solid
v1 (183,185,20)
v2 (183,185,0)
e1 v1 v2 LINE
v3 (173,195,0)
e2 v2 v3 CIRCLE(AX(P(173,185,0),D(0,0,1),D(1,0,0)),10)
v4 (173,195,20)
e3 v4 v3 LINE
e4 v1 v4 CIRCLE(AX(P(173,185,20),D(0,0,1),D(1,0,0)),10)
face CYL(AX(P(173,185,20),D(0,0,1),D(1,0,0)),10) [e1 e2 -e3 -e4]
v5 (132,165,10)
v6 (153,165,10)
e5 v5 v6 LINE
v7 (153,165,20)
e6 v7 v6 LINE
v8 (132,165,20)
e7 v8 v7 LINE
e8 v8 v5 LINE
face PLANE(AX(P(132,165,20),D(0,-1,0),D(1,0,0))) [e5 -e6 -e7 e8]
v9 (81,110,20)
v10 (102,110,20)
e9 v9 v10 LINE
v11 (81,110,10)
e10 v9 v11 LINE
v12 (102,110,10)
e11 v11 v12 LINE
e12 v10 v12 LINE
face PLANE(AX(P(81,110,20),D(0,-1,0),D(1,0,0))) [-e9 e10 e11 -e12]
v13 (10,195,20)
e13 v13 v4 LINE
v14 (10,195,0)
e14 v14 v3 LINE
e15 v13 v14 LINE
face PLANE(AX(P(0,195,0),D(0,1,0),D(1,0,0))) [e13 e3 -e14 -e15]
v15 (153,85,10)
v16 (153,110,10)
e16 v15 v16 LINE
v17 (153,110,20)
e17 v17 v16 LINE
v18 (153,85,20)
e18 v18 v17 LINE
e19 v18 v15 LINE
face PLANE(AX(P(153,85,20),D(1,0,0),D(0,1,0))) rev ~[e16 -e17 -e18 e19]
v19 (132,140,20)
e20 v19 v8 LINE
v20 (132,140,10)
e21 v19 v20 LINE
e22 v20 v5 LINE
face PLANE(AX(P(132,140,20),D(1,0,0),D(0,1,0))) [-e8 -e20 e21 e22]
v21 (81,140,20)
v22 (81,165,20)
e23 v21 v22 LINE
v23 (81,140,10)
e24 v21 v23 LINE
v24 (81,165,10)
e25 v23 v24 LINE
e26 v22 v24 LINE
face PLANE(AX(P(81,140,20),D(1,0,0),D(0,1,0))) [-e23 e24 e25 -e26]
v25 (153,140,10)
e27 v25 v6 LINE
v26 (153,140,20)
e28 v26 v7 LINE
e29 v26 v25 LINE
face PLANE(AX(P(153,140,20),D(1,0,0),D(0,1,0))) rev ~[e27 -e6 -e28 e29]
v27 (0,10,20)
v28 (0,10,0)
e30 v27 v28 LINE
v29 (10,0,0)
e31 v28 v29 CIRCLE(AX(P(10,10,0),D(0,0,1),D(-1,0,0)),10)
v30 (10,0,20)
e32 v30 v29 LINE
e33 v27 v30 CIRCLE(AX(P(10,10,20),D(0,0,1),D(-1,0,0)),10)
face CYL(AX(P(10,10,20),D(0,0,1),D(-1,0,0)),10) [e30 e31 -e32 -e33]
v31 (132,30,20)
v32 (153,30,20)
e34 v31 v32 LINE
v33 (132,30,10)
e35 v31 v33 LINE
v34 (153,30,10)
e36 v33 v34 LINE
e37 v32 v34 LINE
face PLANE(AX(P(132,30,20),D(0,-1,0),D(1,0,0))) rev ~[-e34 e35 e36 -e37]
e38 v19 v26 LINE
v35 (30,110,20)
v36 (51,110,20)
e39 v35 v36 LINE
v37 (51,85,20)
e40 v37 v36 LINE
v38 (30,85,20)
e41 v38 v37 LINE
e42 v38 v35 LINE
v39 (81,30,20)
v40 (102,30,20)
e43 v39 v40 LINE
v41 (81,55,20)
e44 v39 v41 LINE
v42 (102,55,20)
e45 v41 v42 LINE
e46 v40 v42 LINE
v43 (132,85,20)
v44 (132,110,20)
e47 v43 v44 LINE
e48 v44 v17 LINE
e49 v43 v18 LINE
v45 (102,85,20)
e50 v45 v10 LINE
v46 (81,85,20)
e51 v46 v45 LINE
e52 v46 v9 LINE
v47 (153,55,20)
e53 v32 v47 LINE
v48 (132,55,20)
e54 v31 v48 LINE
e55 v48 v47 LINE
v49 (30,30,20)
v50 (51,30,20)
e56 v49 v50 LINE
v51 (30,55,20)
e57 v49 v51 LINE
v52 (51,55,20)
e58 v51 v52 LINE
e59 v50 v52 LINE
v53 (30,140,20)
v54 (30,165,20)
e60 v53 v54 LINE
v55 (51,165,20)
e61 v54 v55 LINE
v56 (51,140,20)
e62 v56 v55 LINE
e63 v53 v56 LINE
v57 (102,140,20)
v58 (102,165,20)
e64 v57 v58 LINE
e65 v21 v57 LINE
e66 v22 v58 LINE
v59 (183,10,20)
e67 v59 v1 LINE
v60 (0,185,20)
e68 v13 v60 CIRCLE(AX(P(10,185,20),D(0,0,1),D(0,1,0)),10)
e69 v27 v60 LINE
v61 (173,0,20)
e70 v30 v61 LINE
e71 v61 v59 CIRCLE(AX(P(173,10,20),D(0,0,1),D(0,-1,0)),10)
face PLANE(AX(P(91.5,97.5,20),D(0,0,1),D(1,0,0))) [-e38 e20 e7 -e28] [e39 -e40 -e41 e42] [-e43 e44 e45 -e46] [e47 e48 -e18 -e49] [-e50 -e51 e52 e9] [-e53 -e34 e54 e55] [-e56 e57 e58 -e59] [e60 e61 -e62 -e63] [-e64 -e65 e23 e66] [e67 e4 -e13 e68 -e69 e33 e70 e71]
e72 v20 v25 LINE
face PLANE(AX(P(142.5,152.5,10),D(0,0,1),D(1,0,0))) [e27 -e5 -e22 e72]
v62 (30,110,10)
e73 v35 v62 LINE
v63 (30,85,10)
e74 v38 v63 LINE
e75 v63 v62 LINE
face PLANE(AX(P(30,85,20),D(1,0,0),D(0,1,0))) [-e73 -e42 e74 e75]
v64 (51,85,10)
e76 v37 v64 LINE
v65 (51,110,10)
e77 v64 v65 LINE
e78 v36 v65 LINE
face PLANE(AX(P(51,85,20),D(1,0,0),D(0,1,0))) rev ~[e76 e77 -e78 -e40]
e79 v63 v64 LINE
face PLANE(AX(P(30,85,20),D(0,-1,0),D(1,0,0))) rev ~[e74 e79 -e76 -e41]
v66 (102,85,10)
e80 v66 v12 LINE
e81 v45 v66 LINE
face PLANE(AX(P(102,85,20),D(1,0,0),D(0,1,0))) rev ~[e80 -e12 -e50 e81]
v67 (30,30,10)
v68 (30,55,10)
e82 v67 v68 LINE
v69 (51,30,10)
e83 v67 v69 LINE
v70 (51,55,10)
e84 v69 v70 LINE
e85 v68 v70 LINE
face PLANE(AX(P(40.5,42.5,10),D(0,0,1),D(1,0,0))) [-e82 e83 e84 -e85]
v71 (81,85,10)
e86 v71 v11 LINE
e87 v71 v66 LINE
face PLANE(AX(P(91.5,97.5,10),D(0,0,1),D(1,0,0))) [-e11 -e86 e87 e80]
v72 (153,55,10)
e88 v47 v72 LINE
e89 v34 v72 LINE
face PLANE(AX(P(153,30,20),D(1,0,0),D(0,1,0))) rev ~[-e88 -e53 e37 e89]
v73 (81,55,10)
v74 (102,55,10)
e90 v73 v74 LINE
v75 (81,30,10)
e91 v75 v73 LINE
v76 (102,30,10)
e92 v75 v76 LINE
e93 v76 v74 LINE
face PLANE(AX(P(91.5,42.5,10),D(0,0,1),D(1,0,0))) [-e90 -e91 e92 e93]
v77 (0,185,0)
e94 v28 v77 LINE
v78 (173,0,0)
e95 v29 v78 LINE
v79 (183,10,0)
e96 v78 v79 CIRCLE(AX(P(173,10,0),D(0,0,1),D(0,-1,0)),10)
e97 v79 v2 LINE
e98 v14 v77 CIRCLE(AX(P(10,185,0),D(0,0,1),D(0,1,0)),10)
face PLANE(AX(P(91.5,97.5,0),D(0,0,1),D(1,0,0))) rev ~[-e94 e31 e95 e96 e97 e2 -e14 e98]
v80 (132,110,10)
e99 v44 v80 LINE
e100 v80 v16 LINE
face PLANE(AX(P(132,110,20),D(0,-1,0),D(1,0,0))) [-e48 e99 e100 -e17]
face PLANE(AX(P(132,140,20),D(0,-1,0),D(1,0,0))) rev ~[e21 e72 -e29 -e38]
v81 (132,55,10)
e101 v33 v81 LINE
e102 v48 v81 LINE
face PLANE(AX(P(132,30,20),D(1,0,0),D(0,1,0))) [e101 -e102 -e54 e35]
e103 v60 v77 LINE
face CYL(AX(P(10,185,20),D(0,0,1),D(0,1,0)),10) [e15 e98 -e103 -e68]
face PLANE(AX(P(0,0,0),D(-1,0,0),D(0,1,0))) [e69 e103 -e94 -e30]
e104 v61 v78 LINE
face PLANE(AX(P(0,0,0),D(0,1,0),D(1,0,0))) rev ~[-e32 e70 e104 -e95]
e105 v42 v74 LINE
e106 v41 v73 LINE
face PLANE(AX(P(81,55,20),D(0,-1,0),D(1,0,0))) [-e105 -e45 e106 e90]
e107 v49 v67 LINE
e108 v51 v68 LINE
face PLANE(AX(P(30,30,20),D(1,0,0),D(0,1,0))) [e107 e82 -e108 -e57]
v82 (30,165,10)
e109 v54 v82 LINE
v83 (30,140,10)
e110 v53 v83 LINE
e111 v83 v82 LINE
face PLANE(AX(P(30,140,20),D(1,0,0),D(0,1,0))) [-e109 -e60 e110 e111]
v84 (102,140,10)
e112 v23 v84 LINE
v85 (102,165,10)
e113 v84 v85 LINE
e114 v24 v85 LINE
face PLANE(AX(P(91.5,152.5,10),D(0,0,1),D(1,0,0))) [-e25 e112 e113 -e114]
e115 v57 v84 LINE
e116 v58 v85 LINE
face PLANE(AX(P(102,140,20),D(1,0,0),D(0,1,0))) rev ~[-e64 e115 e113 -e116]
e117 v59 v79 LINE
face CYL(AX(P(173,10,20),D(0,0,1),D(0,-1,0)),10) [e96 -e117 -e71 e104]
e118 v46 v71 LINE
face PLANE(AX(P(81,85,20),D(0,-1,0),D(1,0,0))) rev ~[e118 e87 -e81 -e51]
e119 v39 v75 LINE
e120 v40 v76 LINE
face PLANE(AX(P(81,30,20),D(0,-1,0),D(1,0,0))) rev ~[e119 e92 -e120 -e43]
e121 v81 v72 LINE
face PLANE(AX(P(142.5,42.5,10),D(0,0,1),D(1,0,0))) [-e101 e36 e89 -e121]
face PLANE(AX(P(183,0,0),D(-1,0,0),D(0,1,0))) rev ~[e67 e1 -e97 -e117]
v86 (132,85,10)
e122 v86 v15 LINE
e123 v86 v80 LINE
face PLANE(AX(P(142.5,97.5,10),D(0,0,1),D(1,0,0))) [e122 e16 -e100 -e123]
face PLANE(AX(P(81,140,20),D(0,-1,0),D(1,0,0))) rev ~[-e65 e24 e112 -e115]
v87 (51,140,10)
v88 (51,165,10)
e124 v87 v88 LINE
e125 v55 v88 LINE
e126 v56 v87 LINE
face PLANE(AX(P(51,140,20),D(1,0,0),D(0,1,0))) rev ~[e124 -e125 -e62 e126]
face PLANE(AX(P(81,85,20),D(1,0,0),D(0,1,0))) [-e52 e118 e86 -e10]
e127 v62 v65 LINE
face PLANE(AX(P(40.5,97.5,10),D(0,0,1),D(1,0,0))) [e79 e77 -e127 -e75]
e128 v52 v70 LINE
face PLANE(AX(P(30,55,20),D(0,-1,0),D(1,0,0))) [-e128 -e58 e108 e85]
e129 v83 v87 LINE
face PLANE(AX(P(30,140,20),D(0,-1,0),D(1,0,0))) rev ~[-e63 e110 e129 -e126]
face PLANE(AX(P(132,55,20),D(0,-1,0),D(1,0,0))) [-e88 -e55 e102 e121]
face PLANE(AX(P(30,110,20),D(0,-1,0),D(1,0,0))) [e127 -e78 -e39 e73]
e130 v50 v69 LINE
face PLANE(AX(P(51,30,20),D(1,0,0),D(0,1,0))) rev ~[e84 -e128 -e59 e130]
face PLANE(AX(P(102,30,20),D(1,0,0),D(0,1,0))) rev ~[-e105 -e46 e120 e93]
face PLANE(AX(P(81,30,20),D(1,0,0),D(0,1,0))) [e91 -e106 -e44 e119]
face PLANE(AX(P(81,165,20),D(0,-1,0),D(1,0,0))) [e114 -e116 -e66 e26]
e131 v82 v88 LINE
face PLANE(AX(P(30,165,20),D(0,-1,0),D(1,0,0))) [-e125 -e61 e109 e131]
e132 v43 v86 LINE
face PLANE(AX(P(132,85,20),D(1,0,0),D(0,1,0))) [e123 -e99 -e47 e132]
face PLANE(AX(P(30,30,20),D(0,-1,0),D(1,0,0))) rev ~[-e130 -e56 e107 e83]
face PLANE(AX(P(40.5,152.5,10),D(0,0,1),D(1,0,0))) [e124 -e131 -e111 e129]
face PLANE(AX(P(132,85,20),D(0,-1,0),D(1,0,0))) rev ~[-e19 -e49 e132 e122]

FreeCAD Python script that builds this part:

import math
import FreeCAD as App
import Part
import Sketcher
from FreeCAD import Vector

doc = App.newDocument("Part")
body = doc.addObject("PartDesign::Body", "Body")

# Sketch on XY plane
sketch1 = body.newObject("Sketcher::SketchObject", "Sketch")
sketch1.AttachmentSupport = (doc.getObject("XY_Plane"), [""])
sketch1.MapMode = "FlatFace"
sketch1.addGeometry([
    Part.LineSegment(Vector(0, 195, 0), Vector(0, 0, 0)),
    Part.LineSegment(Vector(0, 0, 0), Vector(183, 0, 0)),
    Part.LineSegment(Vector(183, 0, 0), Vector(183, 195, 0)),
    Part.LineSegment(Vector(183, 195, 0), Vector(0, 195, 0)),
], False)
sketch1.addConstraint([
    Sketcher.Constraint("Coincident", 0, 2, 1, 1),
    Sketcher.Constraint("Coincident", 1, 2, 2, 1),
    Sketcher.Constraint("Coincident", 2, 2, 3, 1),
    Sketcher.Constraint("Coincident", 3, 2, 0, 1),
    Sketcher.Constraint("Vertical", 0),
    Sketcher.Constraint("Horizontal", 1),
    Sketcher.Constraint("Vertical", 2),
    Sketcher.Constraint("Horizontal", 3),
    Sketcher.Constraint("Coincident", 0, 2, -1, 1),
    Sketcher.Constraint("DistanceX", 1, 1, 1, 2, 183.0),
    Sketcher.Constraint("DistanceY", 0, 2, 0, 1, 195.0),
])
pad1 = body.newObject("PartDesign::Pad", "Pad")
pad1.Profile = sketch1
pad1.Length = 20

# Sketch on XY plane
sketch2 = body.newObject("Sketcher::SketchObject", "Sketch001")
sketch2.AttachmentSupport = (doc.getObject("XY_Plane"), [""])
sketch2.MapMode = "FlatFace"
sketch2.AttachmentOffset = App.Placement(Vector(0, 0, 20), App.Rotation())
sketch2.addGeometry([
    Part.LineSegment(Vector(30, 110, 0), Vector(30, 85, 0)),  # 0
    Part.LineSegment(Vector(30, 85, 0), Vector(51, 85, 0)),  # 1
    Part.LineSegment(Vector(51, 85, 0), Vector(51, 110, 0)),  # 2
    Part.LineSegment(Vector(51, 110, 0), Vector(30, 110, 0)),  # 3
    Part.LineSegment(Vector(30, 165, 0), Vector(30, 140, 0)),  # 4
    Part.LineSegment(Vector(30, 140, 0), Vector(51, 140, 0)),  # 5
    Part.LineSegment(Vector(51, 140, 0), Vector(51, 165, 0)),  # 6
    Part.LineSegment(Vector(51, 165, 0), Vector(30, 165, 0)),  # 7
    Part.LineSegment(Vector(81, 165, 0), Vector(81, 140, 0)),  # 8
    Part.LineSegment(Vector(81, 140, 0), Vector(102, 140, 0)),  # 9
    Part.LineSegment(Vector(102, 140, 0), Vector(102, 165, 0)),  # 10
    Part.LineSegment(Vector(102, 165, 0), Vector(81, 165, 0)),  # 11
    Part.LineSegment(Vector(30, 55, 0), Vector(30, 30, 0)),  # 12
    Part.LineSegment(Vector(30, 30, 0), Vector(51, 30, 0)),  # 13
    Part.LineSegment(Vector(51, 30, 0), Vector(51, 55, 0)),  # 14
    Part.LineSegment(Vector(51, 55, 0), Vector(30, 55, 0)),  # 15
    Part.LineSegment(Vector(81, 110, 0), Vector(81, 85, 0)),  # 16
    Part.LineSegment(Vector(81, 85, 0), Vector(102, 85, 0)),  # 17
    Part.LineSegment(Vector(102, 85, 0), Vector(102, 110, 0)),  # 18
    Part.LineSegment(Vector(102, 110, 0), Vector(81, 110, 0)),  # 19
    Part.LineSegment(Vector(81, 55, 0), Vector(81, 30, 0)),  # 20
    Part.LineSegment(Vector(81, 30, 0), Vector(102, 30, 0)),  # 21
    Part.LineSegment(Vector(102, 30, 0), Vector(102, 55, 0)),  # 22
    Part.LineSegment(Vector(102, 55, 0), Vector(81, 55, 0)),  # 23
    Part.LineSegment(Vector(132, 110, 0), Vector(132, 85, 0)),  # 24
    Part.LineSegment(Vector(132, 85, 0), Vector(153, 85, 0)),  # 25
    Part.LineSegment(Vector(153, 85, 0), Vector(153, 110, 0)),  # 26
    Part.LineSegment(Vector(153, 110, 0), Vector(132, 110, 0)),  # 27
    Part.LineSegment(Vector(132, 55, 0), Vector(132, 30, 0)),  # 28
    Part.LineSegment(Vector(132, 30, 0), Vector(153, 30, 0)),  # 29
    Part.LineSegment(Vector(153, 30, 0), Vector(153, 55, 0)),  # 30
    Part.LineSegment(Vector(153, 55, 0), Vector(132, 55, 0)),  # 31
    Part.LineSegment(Vector(132, 165, 0), Vector(132, 140, 0)),  # 32
    Part.LineSegment(Vector(132, 140, 0), Vector(153, 140, 0)),  # 33
    Part.LineSegment(Vector(153, 140, 0), Vector(153, 165, 0)),  # 34
    Part.LineSegment(Vector(153, 165, 0), Vector(132, 165, 0)),  # 35
], False)
sketch2.addConstraint([
    Sketcher.Constraint("Coincident", 0, 2, 1, 1),
    Sketcher.Constraint("Coincident", 1, 2, 2, 1),
    Sketcher.Constraint("Coincident", 2, 2, 3, 1),
    Sketcher.Constraint("Coincident", 3, 2, 0, 1),
    Sketcher.Constraint("Coincident", 4, 2, 5, 1),
    Sketcher.Constraint("Coincident", 5, 2, 6, 1),
    Sketcher.Constraint("Coincident", 6, 2, 7, 1),
    Sketcher.Constraint("Coincident", 7, 2, 4, 1),
    Sketcher.Constraint("Coincident", 8, 2, 9, 1),
    Sketcher.Constraint("Coincident", 9, 2, 10, 1),
    Sketcher.Constraint("Coincident", 10, 2, 11, 1),
    Sketcher.Constraint("Coincident", 11, 2, 8, 1),
    Sketcher.Constraint("Coincident", 12, 2, 13, 1),
    Sketcher.Constraint("Coincident", 13, 2, 14, 1),
    Sketcher.Constraint("Coincident", 14, 2, 15, 1),
    Sketcher.Constraint("Coincident", 15, 2, 12, 1),
    Sketcher.Constraint("Coincident", 16, 2, 17, 1),
    Sketcher.Constraint("Coincident", 17, 2, 18, 1),
    Sketcher.Constraint("Coincident", 18, 2, 19, 1),
    Sketcher.Constraint("Coincident", 19, 2, 16, 1),
    Sketcher.Constraint("Coincident", 20, 2, 21, 1),
    Sketcher.Constraint("Coincident", 21, 2, 22, 1),
    Sketcher.Constraint("Coincident", 22, 2, 23, 1),
    Sketcher.Constraint("Coincident", 23, 2, 20, 1),
    Sketcher.Constraint("Coincident", 24, 2, 25, 1),
    Sketcher.Constraint("Coincident", 25, 2, 26, 1),
    Sketcher.Constraint("Coincident", 26, 2, 27, 1),
    Sketcher.Constraint("Coincident", 27, 2, 24, 1),
    Sketcher.Constraint("Coincident", 28, 2, 29, 1),
    Sketcher.Constraint("Coincident", 29, 2, 30, 1),
    Sketcher.Constraint("Coincident", 30, 2, 31, 1),
    Sketcher.Constraint("Coincident", 31, 2, 28, 1),
    Sketcher.Constraint("Coincident", 32, 2, 33, 1),
    Sketcher.Constraint("Coincident", 33, 2, 34, 1),
    Sketcher.Constraint("Coincident", 34, 2, 35, 1),
    Sketcher.Constraint("Coincident", 35, 2, 32, 1),
    Sketcher.Constraint("Vertical", 0),
    Sketcher.Constraint("Horizontal", 1),
    Sketcher.Constraint("Vertical", 2),
    Sketcher.Constraint("Horizontal", 3),
    Sketcher.Constraint("Vertical", 4),
    Sketcher.Constraint("Horizontal", 5),
    Sketcher.Constraint("Vertical", 6),
    Sketcher.Constraint("Horizontal", 7),
    Sketcher.Constraint("Vertical", 8),
    Sketcher.Constraint("Horizontal", 9),
    Sketcher.Constraint("Vertical", 10),
    Sketcher.Constraint("Horizontal", 11),
    Sketcher.Constraint("Vertical", 12),
    Sketcher.Constraint("Horizontal", 13),
    Sketcher.Constraint("Vertical", 14),
    Sketcher.Constraint("Horizontal", 15),
    Sketcher.Constraint("Vertical", 16),
    Sketcher.Constraint("Horizontal", 17),
    Sketcher.Constraint("Vertical", 18),
    Sketcher.Constraint("Horizontal", 19),
    Sketcher.Constraint("Vertical", 20),
    Sketcher.Constraint("Horizontal", 21),
    Sketcher.Constraint("Vertical", 22),
    Sketcher.Constraint("Horizontal", 23),
    Sketcher.Constraint("Vertical", 24),
    Sketcher.Constraint("Horizontal", 25),
    Sketcher.Constraint("Vertical", 26),
    Sketcher.Constraint("Horizontal", 27),
    Sketcher.Constraint("Vertical", 28),
    Sketcher.Constraint("Horizontal", 29),
    Sketcher.Constraint("Vertical", 30),
    Sketcher.Constraint("Horizontal", 31),
    Sketcher.Constraint("Vertical", 32),
    Sketcher.Constraint("Horizontal", 33),
    Sketcher.Constraint("Vertical", 34),
    Sketcher.Constraint("Horizontal", 35),
    Sketcher.Constraint("Horizontal", 5, 2, 8, 2),
    Sketcher.Constraint("Horizontal", 7, 2, 10, 2),
    Sketcher.Constraint("Horizontal", 1, 2, 16, 2),
    Sketcher.Constraint("Horizontal", 3, 2, 18, 2),
    Sketcher.Constraint("Horizontal", 13, 2, 20, 2),
    Sketcher.Constraint("Horizontal", 15, 2, 22, 2),
    Sketcher.Constraint("Horizontal", 17, 2, 24, 2),
    Sketcher.Constraint("Horizontal", 19, 2, 26, 2),
    Sketcher.Constraint("Horizontal", 21, 2, 28, 2),
    Sketcher.Constraint("Horizontal", 23, 2, 30, 2),
    Sketcher.Constraint("Horizontal", 9, 2, 32, 2),
    Sketcher.Constraint("Horizontal", 11, 2, 34, 2),
    Sketcher.Constraint("Vertical", 3, 2, 4, 2),
    Sketcher.Constraint("Vertical", 2, 2, 5, 2),
    Sketcher.Constraint("Vertical", 7, 2, 12, 2),
    Sketcher.Constraint("Vertical", 6, 2, 13, 2),
    Sketcher.Constraint("Vertical", 11, 2, 16, 2),
    Sketcher.Constraint("Vertical", 10, 2, 17, 2),
    Sketcher.Constraint("Vertical", 19, 2, 20, 2),
    Sketcher.Constraint("Vertical", 18, 2, 21, 2),
    Sketcher.Constraint("Vertical", 27, 2, 28, 2),
    Sketcher.Constraint("Vertical", 26, 2, 29, 2),
    Sketcher.Constraint("Vertical", 31, 2, 32, 2),
    Sketcher.Constraint("Vertical", 30, 2, 33, 2),
    Sketcher.Constraint("Equal", 7, 9),
    Sketcher.Constraint("Equal", 23, 25),
    Sketcher.Constraint("Equal", 2, 4),
    Sketcher.Constraint("Equal", 10, 12),
    Sketcher.Constraint("DistanceX", 1, 1, 1, 2, 21.0),
    Sketcher.Constraint("DistanceY", 0, 2, 0, 1, 25.0),
    Sketcher.Constraint("DistanceX", -1, 1, 0, 2, 30.0),
    Sketcher.Constraint("DistanceY", -1, 1, 0, 2, 85.0),
    Sketcher.Constraint("DistanceY", -1, 1, 4, 2, 140.0),
    Sketcher.Constraint("DistanceX", -1, 1, 8, 2, 81.0),
    Sketcher.Constraint("DistanceY", -1, 1, 12, 2, 30.0),
    Sketcher.Constraint("DistanceX", -1, 1, 24, 2, 132.0),
])
pocket1 = body.newObject("PartDesign::Pocket", "Pocket")
pocket1.Profile = sketch2
pocket1.Length = 10

# Sketch on XY plane
sketch3 = body.newObject("Sketcher::SketchObject", "Sketch002")
sketch3.AttachmentSupport = (doc.getObject("XY_Plane"), [""])
sketch3.MapMode = "FlatFace"
sketch3.AttachmentOffset = App.Placement(Vector(0, 0, 20), App.Rotation())
sketch3.addGeometry([
    Part.LineSegment(Vector(0, 195, 0), Vector(0, 185, 0)),  # 0
    Part.ArcOfCircle(Part.Circle(Vector(10, 185, 0), Vector(0, 0, 1), 10), math.radians(90), math.radians(180)),  # 1
    Part.LineSegment(Vector(10, 195, 0), Vector(0, 195, 0)),  # 2
    Part.LineSegment(Vector(183, 195, 0), Vector(173, 195, 0)),  # 3
    Part.ArcOfCircle(Part.Circle(Vector(173, 185, 0), Vector(0, 0, 1), 10), math.radians(0), math.radians(90)),  # 4
    Part.LineSegment(Vector(183, 185, 0), Vector(183, 195, 0)),  # 5
    Part.LineSegment(Vector(183, 0, 0), Vector(183, 10, 0)),  # 6
    Part.ArcOfCircle(Part.Circle(Vector(173, 10, 0), Vector(0, 0, 1), 10), math.radians(-90), math.radians(0)),  # 7
    Part.LineSegment(Vector(173, 0, 0), Vector(183, 0, 0)),  # 8
    Part.LineSegment(Vector(0, 0, 0), Vector(10, 0, 0)),  # 9
    Part.ArcOfCircle(Part.Circle(Vector(10, 10, 0), Vector(0, 0, 1), 10), math.radians(180), math.radians(270)),  # 10
    Part.LineSegment(Vector(0, 10, 0), Vector(0, 0, 0)),  # 11
], False)
sketch3.addConstraint([
    Sketcher.Constraint("Tangent", 0, 2, 1, 2),
    Sketcher.Constraint("Tangent", 1, 1, 2, 1),
    Sketcher.Constraint("Coincident", 2, 2, 0, 1),
    Sketcher.Constraint("Tangent", 3, 2, 4, 2),
    Sketcher.Constraint("Tangent", 4, 1, 5, 1),
    Sketcher.Constraint("Coincident", 5, 2, 3, 1),
    Sketcher.Constraint("Tangent", 6, 2, 7, 2),
    Sketcher.Constraint("Tangent", 7, 1, 8, 1),
    Sketcher.Constraint("Coincident", 8, 2, 6, 1),
    Sketcher.Constraint("Tangent", 9, 2, 10, 2),
    Sketcher.Constraint("Tangent", 10, 1, 11, 1),
    Sketcher.Constraint("Coincident", 11, 2, 9, 1),
    Sketcher.Constraint("Vertical", 0),
    Sketcher.Constraint("Horizontal", 2),
    Sketcher.Constraint("Horizontal", 3),
    Sketcher.Constraint("Vertical", 5),
    Sketcher.Constraint("Vertical", 6),
    Sketcher.Constraint("Horizontal", 8),
    Sketcher.Constraint("Horizontal", 9),
    Sketcher.Constraint("Vertical", 11),
    Sketcher.Constraint("Coincident", 11, 2, -1, 1),
    Sketcher.Constraint("Equal", 1, 4),
    Sketcher.Constraint("Equal", 4, 7),
    Sketcher.Constraint("Equal", 7, 10),
    Sketcher.Constraint("PointOnObject", 0, 2, -2),
    Sketcher.Constraint("PointOnObject", 7, 1, -1),
    Sketcher.Constraint("Horizontal", 1, 3, 4, 3),
    Sketcher.Constraint("Vertical", 4, 3, 7, 3),
    Sketcher.Constraint("Radius", 1, 10.0),
    Sketcher.Constraint("DistanceY", -1, 1, 1, 3, 185.0),
    Sketcher.Constraint("DistanceX", -1, 1, 4, 3, 173.0),
])
pocket2 = body.newObject("PartDesign::Pocket", "Pocket001")
pocket2.Profile = sketch3
pocket2.Length = 135

doc.recompute()
